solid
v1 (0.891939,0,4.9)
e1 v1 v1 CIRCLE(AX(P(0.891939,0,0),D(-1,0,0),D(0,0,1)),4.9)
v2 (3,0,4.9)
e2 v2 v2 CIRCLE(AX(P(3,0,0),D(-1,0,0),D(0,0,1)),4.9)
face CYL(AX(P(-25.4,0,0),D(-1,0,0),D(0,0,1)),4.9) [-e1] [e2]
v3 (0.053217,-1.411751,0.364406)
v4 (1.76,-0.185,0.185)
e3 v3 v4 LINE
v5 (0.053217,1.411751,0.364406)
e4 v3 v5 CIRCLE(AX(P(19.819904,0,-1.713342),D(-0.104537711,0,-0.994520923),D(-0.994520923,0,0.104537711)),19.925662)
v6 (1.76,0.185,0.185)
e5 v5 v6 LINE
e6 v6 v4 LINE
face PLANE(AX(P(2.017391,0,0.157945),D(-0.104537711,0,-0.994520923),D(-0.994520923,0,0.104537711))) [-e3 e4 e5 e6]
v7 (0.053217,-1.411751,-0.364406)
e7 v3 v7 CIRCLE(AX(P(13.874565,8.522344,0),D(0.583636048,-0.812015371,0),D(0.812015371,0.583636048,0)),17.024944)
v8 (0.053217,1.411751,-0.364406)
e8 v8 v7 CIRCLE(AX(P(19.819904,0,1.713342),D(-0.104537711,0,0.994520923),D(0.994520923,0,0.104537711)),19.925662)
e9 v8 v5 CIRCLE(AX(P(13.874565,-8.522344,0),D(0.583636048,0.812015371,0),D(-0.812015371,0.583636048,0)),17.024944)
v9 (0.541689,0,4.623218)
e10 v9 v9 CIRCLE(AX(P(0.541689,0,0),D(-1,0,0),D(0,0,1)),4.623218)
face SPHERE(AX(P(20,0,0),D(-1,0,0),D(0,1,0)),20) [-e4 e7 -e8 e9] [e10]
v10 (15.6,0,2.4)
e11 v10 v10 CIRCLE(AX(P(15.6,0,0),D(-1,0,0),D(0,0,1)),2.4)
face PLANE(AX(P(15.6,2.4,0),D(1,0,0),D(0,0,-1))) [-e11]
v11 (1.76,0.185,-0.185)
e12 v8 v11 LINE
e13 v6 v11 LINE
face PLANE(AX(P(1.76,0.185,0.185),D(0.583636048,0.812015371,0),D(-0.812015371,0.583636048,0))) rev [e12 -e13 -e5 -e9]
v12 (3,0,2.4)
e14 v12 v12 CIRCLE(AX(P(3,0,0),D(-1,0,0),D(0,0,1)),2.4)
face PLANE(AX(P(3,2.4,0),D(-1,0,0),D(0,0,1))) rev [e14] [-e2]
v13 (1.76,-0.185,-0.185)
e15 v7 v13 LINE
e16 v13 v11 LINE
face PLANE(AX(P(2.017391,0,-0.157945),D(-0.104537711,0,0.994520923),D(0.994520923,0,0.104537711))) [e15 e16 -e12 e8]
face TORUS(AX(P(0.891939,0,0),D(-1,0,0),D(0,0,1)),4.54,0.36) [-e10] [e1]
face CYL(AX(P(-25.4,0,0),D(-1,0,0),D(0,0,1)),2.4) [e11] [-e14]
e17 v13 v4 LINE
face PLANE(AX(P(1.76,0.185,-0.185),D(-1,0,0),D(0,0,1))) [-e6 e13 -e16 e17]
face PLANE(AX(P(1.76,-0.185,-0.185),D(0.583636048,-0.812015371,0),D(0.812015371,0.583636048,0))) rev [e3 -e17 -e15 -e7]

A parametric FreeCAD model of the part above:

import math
import FreeCAD as App
import Part
import Sketcher

V = App.Vector


def add_polygon(sketch, points):
    """Adds a closed chain of lines whose ends are joined by coincident constraints."""
    first, n = sketch.GeometryCount, len(points)
    for a, b in zip(points, points[1:] + points[:1]):
        sketch.addGeometry(Part.LineSegment(App.Vector(*a, 0), App.Vector(*b, 0)), False)
    for i in range(n):
        sketch.addConstraint(Sketcher.Constraint("Coincident", first + i, 2, first + (i + 1) % n, 1))

doc = App.newDocument("Part")
body = doc.addObject("PartDesign::Body", "Body")

sketch1 = body.newObject("Sketcher::SketchObject", "Sketch")
sketch1.AttachmentSupport = (doc.getObject("XY_Plane"), [""])
sketch1.MapMode = "FlatFace"
sketch1.addGeometry([
    Part.LineSegment(V(3, 2.4, 0), V(3, 4.9, 0)),
    Part.LineSegment(V(3, 4.9, 0), V(0.89, 4.9, 0)),
    Part.ArcOfCircle(Part.Circle(V(0.89, 4.54, 0), V(0, 0, 1), 0.36), math.radians(90), math.radians(167)),
    Part.ArcOfCircle(Part.Circle(V(20, 0, 0), V(0, 0, 1), 20), math.radians(166.63), math.radians(180)),
    Part.LineSegment(V(0, 0, 0), V(15.6, 0, 0)),
    Part.LineSegment(V(15.6, 0, 0), V(15.6, 2.4, 0)),
    Part.LineSegment(V(15.6, 2.4, 0), V(3, 2.4, 0)),
], False)
sketch1.addConstraint([
    Sketcher.Constraint("Coincident", 0, 2, 1, 1),
    Sketcher.Constraint("Tangent", 1, 2, 2, 1),
    Sketcher.Constraint("Tangent", 2, 2, 3, 1),
    Sketcher.Constraint("Coincident", 3, 2, 4, 1),
    Sketcher.Constraint("Coincident", 4, 2, 5, 1),
    Sketcher.Constraint("Coincident", 5, 2, 6, 1),
    Sketcher.Constraint("Coincident", 6, 2, 0, 1),
    Sketcher.Constraint("Vertical", 0),
    Sketcher.Constraint("Horizontal", 1),
    Sketcher.Constraint("Horizontal", 4),
    Sketcher.Constraint("Vertical", 5),
    Sketcher.Constraint("Horizontal", 6),
    Sketcher.Constraint("Coincident", 3, 2, -1, 1),
    Sketcher.Constraint("PointOnObject", 3, 3, -1),
    Sketcher.Constraint("Radius", 3, 20.0),
    Sketcher.Constraint("Radius", 2, 0.36),
    Sketcher.Constraint("DistanceX", 4, 1, 4, 2, 15.6),
    Sketcher.Constraint("DistanceX", 6, 2, 6, 1, 12.6),
    Sketcher.Constraint("DistanceY", 0, 1, 0, 2, 2.5),
    Sketcher.Constraint("DistanceY", 5, 1, 5, 2, 2.4),
])
revolution = body.newObject("PartDesign::Revolution", "Revolution")
revolution.Profile = sketch1
revolution.ReferenceAxis = (sketch1, ["H_Axis"])
revolution.Angle = 360

sketch2 = body.newObject("Sketcher::SketchObject", "Sketch001")
sketch2.AttachmentSupport = (doc.getObject("YZ_Plane"), [""])
sketch2.MapMode = "FlatFace"
add_polygon(sketch2, [(1.4, 0.4), (-1.4, 0.4), (-1.4, -0.4), (1.4, -0.4)])
sketch2.addConstraint([
    Sketcher.Constraint("Horizontal", 0),
    Sketcher.Constraint("Vertical", 1),
    Sketcher.Constraint("Horizontal", 2),
    Sketcher.Constraint("Vertical", 3),
    Sketcher.Constraint("Symmetric", 0, 2, 2, 2, -1, 1),
    Sketcher.Constraint("DistanceX", 0, 2, 0, 1, 2.9),
    Sketcher.Constraint("DistanceY", 1, 2, 1, 1, 0.74),
])

sketch3 = body.newObject("Sketcher::SketchObject", "Sketch002")
sketch3.AttachmentSupport = (doc.getObject("YZ_Plane"), [""])
sketch3.MapMode = "FlatFace"
sketch3.AttachmentOffset = App.Placement(V(0, 0, 1.76), App.Rotation())
add_polygon(sketch3, [(0.18, 0.18), (-0.18, 0.18), (-0.18, -0.18), (0.18, -0.18)])
sketch3.addConstraint([
    Sketcher.Constraint("Horizontal", 0),
    Sketcher.Constraint("Vertical", 1),
    Sketcher.Constraint("Horizontal", 2),
    Sketcher.Constraint("Vertical", 3),
    Sketcher.Constraint("Symmetric", 0, 2, 2, 2, -1, 1),
    Sketcher.Constraint("Equal", 2, 1),
    Sketcher.Constraint("DistanceX", 0, 2, 0, 1, 0.37),
])

subtractiveloft = body.newObject("PartDesign::SubtractiveLoft", "SubtractiveLoft")
subtractiveloft.Profile = sketch2
subtractiveloft.Sections = [sketch3]

doc.recompute()
